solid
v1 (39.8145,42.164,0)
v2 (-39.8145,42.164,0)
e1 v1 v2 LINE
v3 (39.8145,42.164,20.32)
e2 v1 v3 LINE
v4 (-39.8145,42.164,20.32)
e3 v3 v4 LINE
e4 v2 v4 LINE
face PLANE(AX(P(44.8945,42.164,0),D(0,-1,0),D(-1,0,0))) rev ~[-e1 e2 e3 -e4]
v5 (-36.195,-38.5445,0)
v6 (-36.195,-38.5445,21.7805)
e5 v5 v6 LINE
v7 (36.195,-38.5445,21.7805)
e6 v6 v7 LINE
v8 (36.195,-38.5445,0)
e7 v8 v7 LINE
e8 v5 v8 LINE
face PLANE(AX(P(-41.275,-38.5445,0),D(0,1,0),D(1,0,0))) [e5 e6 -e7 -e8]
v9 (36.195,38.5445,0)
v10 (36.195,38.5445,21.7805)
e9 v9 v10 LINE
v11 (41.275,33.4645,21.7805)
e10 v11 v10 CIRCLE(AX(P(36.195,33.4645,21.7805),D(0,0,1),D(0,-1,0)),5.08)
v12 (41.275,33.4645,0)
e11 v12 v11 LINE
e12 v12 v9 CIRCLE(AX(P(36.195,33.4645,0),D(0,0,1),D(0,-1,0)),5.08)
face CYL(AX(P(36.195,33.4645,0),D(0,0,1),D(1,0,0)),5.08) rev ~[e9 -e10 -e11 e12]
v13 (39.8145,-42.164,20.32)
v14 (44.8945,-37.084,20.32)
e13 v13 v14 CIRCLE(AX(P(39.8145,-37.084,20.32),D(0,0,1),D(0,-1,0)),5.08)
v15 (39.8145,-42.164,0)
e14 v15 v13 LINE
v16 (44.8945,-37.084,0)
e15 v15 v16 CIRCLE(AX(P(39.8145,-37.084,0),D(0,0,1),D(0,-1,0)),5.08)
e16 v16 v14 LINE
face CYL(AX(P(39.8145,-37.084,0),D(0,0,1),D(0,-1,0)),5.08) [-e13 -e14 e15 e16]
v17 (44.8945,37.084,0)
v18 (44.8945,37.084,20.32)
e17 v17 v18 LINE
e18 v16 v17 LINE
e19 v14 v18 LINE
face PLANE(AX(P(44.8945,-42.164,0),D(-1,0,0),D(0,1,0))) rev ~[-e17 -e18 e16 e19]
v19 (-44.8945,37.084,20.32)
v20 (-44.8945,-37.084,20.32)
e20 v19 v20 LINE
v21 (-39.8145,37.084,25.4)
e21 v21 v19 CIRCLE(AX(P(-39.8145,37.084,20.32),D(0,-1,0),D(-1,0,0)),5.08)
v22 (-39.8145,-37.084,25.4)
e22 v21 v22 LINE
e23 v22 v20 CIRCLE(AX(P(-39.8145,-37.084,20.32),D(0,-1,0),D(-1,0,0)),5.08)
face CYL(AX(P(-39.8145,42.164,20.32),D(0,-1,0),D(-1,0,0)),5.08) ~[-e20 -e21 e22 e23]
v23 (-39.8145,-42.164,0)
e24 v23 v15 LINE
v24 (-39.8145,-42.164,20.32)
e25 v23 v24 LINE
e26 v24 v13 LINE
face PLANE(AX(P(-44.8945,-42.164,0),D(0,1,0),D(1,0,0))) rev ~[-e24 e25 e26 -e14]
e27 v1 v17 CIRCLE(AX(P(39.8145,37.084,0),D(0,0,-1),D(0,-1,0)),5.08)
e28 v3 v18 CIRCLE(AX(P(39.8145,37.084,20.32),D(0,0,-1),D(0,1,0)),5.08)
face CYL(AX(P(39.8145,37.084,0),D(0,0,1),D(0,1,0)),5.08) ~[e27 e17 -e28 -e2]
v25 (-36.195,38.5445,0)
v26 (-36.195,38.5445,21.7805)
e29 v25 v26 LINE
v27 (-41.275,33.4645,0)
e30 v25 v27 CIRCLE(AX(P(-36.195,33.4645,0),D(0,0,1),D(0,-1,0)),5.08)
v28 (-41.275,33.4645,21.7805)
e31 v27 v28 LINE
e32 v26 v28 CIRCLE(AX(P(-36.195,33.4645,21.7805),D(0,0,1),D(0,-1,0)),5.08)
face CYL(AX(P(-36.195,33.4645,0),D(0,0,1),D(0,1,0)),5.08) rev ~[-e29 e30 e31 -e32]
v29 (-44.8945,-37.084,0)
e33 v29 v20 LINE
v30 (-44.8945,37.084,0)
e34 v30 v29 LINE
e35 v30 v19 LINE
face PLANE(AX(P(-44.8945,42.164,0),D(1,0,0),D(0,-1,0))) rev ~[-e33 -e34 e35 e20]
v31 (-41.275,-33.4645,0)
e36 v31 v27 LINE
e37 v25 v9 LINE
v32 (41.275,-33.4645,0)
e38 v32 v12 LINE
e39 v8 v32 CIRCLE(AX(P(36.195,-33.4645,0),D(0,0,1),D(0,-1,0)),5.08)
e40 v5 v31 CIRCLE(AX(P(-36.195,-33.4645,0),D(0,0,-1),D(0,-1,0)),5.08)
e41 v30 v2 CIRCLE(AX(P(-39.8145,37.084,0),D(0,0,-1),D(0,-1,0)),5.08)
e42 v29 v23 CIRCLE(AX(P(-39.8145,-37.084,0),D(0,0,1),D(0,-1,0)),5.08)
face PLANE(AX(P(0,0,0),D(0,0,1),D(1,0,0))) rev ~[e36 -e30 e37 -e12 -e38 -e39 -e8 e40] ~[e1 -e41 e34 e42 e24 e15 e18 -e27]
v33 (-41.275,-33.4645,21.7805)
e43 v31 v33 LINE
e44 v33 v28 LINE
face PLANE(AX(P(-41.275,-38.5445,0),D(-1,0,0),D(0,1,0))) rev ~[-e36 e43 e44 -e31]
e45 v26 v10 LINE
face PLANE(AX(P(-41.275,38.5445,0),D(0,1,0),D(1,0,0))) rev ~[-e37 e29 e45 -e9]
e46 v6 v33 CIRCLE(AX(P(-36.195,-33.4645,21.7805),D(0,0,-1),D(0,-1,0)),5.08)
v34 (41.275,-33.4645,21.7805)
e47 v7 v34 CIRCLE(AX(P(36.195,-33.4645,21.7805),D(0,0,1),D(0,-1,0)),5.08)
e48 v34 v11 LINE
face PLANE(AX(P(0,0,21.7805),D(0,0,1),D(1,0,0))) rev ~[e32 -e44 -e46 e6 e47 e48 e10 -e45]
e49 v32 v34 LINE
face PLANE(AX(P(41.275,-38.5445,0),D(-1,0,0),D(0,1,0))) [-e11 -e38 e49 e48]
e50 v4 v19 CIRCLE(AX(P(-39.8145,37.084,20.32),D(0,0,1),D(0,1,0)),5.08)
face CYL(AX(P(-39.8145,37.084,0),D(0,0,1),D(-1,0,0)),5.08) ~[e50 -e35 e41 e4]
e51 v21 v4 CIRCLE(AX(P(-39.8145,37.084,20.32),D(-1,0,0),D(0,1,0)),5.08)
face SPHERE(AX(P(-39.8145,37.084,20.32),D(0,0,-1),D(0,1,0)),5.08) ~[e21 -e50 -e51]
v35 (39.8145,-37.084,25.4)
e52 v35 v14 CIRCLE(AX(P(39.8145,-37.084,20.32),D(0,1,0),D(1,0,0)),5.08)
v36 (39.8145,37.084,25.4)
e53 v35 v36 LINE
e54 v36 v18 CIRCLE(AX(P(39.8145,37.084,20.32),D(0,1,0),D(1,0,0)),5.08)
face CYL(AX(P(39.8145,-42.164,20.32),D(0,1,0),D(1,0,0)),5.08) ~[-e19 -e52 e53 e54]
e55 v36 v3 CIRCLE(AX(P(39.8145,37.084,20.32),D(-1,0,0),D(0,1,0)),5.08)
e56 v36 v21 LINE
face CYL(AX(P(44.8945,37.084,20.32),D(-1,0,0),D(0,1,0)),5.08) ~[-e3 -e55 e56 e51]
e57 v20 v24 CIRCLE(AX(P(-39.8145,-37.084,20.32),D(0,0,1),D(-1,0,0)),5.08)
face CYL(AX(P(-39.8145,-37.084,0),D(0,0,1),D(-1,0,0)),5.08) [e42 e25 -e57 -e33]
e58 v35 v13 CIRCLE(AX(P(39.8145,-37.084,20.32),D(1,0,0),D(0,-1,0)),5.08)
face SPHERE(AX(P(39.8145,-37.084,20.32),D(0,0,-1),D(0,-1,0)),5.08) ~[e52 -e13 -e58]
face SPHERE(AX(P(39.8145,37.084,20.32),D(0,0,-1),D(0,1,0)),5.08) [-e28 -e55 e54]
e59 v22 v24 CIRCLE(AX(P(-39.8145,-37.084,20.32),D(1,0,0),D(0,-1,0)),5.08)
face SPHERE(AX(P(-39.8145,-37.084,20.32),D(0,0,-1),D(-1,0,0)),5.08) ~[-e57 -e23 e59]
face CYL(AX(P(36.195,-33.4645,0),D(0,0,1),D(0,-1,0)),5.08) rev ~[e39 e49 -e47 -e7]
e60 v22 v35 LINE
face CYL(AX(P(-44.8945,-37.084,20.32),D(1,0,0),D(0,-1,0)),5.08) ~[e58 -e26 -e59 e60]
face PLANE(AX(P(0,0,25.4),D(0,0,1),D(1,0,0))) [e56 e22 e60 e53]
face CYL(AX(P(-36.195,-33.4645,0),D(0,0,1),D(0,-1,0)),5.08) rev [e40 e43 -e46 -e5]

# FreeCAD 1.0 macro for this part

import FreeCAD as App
import Part
import Sketcher
from FreeCAD import Vector
Q = App.Units.Quantity


def edges_at(feature, points):
    """Names of the edges that pass closest to the given points."""
    edges = feature.Shape.Edges
    near = lambda p: min(range(len(edges)), key=lambda i: edges[i].distToShape(Part.Vertex(*p))[0])
    return sorted({f"Edge{near(p) + 1}" for p in points})

doc = App.newDocument("Part")
body = doc.addObject("PartDesign::Body", "Body")

sketch1 = body.newObject("Sketcher::SketchObject", "Sketch")
sketch1.AttachmentSupport = (doc.getObject("XY_Plane"), [""])
sketch1.MapMode = "FlatFace"
sketch1.addGeometry([
    Part.LineSegment(Vector(-45, 42, 0), Vector(-45, -42, 0)),
    Part.LineSegment(Vector(-45, -42, 0), Vector(45, -42, 0)),
    Part.LineSegment(Vector(45, -42, 0), Vector(45, 42, 0)),
    Part.LineSegment(Vector(45, 42, 0), Vector(-45, 42, 0)),
    Part.LineSegment(Vector(41, -39, 0), Vector(-41, -39, 0)),
    Part.LineSegment(Vector(-41, -39, 0), Vector(-41, 39, 0)),
    Part.LineSegment(Vector(-41, 39, 0), Vector(41, 39, 0)),
    Part.LineSegment(Vector(41, 39, 0), Vector(41, -39, 0)),
], False)
sketch1.addConstraint([
    Sketcher.Constraint("Coincident", 0, 2, 1, 1),
    Sketcher.Constraint("Coincident", 1, 2, 2, 1),
    Sketcher.Constraint("Coincident", 2, 2, 3, 1),
    Sketcher.Constraint("Coincident", 3, 2, 0, 1),
    Sketcher.Constraint("Coincident", 4, 2, 5, 1),
    Sketcher.Constraint("Coincident", 5, 2, 6, 1),
    Sketcher.Constraint("Coincident", 6, 2, 7, 1),
    Sketcher.Constraint("Coincident", 7, 2, 4, 1),
    Sketcher.Constraint("Vertical", 0),
    Sketcher.Constraint("Horizontal", 1),
    Sketcher.Constraint("Vertical", 2),
    Sketcher.Constraint("Horizontal", 3),
    Sketcher.Constraint("Horizontal", 4),
    Sketcher.Constraint("Vertical", 5),
    Sketcher.Constraint("Horizontal", 6),
    Sketcher.Constraint("Vertical", 7),
    Sketcher.Constraint("Symmetric", 0, 2, 2, 2, -1, 1),
    Sketcher.Constraint("Symmetric", 4, 2, 6, 2, -1, 1),
    Sketcher.Constraint("DistanceX", 4, 2, 4, 1, Q("3.25 in")),
    Sketcher.Constraint("DistanceY", 0, 2, 0, 1, Q("3.32 in")),
    Sketcher.Constraint("DistanceX", 1, 1, 1, 2, Q("3.535 in")),
    Sketcher.Constraint("DistanceY", 5, 1, 5, 2, Q("3.035 in")),
])
pad1 = body.newObject("PartDesign::Pad", "Pad")
pad1.Profile = sketch1
pad1.Length = Q("1 in")

sketch2 = body.newObject("Sketcher::SketchObject", "Sketch001")
sketch2.AttachmentSupport = (doc.getObject("XY_Plane"), [""])
sketch2.MapMode = "FlatFace"
sketch2.AttachmentOffset = App.Placement(Vector(0, 0, 1 * 25.4), App.Rotation())
sketch2.addGeometry([
    Part.LineSegment(Vector(-41, 39, 0), Vector(-41, -39, 0)),
    Part.LineSegment(Vector(-41, -39, 0), Vector(41, -39, 0)),
    Part.LineSegment(Vector(41, -39, 0), Vector(41, 39, 0)),
    Part.LineSegment(Vector(41, 39, 0), Vector(-41, 39, 0)),
], False)
sketch2.addConstraint([
    Sketcher.Constraint("Coincident", 0, 2, 1, 1),
    Sketcher.Constraint("Coincident", 1, 2, 2, 1),
    Sketcher.Constraint("Coincident", 2, 2, 3, 1),
    Sketcher.Constraint("Coincident", 3, 2, 0, 1),
    Sketcher.Constraint("Vertical", 0),
    Sketcher.Constraint("Horizontal", 1),
    Sketcher.Constraint("Vertical", 2),
    Sketcher.Constraint("Horizontal", 3),
    Sketcher.Constraint("Symmetric", 0, 2, 2, 2, -1, 1),
    Sketcher.Constraint("DistanceX", 1, 1, 1, 2, Q("3.25 in")),
    Sketcher.Constraint("DistanceY", 0, 2, 0, 1, Q("3.035 in")),
])
pad2 = body.newObject("PartDesign::Pad", "Pad001")
pad2.Profile = sketch2
pad2.Length = Q("0.1425 in")
pad2.Reversed = True
doc.recompute()

fillet = body.newObject("PartDesign::Fillet", "Fillet")
fillet.Base = (pad2, edges_at(pad2, [
    (41.275, -38.544, 10.89),
    (-41.275, -38.544, 10.89),
    (41.275, 38.544, 10.89),
    (-41.275, 38.544, 10.89),
]))
fillet.Radius = Q("0.2 in")
doc.recompute()

fillet2 = body.newObject("PartDesign::Fillet", "Fillet001")
fillet2.Base = (fillet, edges_at(fillet, [
    (-44.895, -42.164, 12.7),
    (44.895, -42.164, 12.7),
    (44.895, 42.164, 12.7),
    (-44.895, 42.164, 12.7),
    (0, 42.164, 25.4),
    (-44.895, 0, 25.4),
    (0, -42.164, 25.4),
    (44.895, 0, 25.4),
]))
fillet2.Radius = Q("0.2 in")

doc.recompute()
